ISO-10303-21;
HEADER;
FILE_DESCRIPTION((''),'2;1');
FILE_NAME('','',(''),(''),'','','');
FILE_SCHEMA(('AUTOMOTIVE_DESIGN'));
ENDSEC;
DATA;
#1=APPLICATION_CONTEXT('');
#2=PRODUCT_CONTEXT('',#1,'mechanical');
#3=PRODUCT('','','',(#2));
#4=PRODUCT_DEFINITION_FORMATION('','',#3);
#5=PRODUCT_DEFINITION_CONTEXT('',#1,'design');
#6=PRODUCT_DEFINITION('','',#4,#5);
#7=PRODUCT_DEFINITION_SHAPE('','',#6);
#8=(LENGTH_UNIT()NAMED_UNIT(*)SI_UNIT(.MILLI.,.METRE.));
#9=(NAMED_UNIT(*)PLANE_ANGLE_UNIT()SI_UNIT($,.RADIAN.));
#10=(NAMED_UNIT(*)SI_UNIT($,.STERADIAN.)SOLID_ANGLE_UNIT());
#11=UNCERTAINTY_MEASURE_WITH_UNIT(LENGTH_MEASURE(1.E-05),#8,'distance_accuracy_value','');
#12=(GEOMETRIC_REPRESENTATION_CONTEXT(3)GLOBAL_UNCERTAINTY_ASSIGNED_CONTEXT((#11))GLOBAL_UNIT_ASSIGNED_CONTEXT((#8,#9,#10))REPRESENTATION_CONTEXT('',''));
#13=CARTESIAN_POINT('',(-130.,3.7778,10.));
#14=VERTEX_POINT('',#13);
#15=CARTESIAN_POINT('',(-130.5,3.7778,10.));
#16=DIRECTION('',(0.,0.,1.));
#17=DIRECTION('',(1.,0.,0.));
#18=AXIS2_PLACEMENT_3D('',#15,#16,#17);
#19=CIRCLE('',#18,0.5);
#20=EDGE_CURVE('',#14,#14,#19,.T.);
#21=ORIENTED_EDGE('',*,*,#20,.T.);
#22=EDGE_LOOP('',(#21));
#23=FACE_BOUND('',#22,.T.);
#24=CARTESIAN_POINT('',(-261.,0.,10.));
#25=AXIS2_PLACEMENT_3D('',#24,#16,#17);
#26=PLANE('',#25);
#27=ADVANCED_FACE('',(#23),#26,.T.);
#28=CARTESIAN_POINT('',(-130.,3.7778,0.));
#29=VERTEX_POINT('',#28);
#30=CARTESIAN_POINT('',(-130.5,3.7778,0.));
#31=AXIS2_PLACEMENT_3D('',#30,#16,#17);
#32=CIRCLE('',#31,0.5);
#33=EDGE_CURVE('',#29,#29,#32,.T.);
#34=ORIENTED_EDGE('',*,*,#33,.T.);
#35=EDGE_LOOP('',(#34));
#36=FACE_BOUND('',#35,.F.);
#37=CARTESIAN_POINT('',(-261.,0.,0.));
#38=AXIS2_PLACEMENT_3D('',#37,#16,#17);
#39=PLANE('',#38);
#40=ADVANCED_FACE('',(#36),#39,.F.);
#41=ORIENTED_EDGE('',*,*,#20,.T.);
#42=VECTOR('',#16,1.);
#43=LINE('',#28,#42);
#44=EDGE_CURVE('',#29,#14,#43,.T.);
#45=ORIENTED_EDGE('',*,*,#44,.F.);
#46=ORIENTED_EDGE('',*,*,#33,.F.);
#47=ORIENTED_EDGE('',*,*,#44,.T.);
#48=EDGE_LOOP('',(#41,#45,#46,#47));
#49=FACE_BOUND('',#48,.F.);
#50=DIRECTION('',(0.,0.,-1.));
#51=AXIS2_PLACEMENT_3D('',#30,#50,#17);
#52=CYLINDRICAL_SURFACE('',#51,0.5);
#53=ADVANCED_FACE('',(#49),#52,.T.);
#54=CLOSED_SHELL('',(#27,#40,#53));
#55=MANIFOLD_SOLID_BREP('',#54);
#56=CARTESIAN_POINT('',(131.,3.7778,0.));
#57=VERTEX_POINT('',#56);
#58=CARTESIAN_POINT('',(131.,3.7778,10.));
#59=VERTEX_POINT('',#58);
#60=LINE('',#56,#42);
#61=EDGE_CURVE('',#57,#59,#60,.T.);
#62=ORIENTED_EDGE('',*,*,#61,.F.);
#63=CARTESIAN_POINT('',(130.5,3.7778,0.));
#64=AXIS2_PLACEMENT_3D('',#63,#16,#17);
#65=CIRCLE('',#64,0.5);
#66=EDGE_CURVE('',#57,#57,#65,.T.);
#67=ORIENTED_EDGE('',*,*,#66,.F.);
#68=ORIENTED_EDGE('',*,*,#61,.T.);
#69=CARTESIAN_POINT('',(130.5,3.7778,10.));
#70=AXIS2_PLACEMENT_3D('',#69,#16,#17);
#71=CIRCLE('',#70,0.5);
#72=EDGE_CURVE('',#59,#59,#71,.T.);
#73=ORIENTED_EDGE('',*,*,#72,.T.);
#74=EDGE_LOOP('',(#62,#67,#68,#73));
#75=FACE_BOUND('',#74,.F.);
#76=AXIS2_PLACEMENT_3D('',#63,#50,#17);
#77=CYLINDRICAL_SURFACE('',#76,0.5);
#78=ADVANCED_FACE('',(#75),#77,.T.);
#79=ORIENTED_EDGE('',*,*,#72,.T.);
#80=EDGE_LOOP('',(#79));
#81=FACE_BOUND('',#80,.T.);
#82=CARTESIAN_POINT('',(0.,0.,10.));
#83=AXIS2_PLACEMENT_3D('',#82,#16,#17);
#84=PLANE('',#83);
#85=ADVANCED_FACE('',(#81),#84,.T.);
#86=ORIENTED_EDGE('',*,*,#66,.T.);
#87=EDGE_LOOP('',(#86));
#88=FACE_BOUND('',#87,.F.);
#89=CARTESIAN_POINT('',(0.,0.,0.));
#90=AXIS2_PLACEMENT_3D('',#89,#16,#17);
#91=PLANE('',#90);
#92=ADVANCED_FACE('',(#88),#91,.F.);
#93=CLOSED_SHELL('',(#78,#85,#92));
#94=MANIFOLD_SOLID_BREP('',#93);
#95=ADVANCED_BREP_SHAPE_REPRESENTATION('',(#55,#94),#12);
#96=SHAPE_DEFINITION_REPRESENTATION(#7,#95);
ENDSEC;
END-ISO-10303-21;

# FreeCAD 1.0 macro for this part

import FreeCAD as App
import Part
import Sketcher

doc = App.newDocument("Part")
body = doc.addObject("PartDesign::Body", "Body")
body.AllowCompound = True

sketch1 = body.newObject("Sketcher::SketchObject", "Sketch")
sketch1.AttachmentSupport = (doc.getObject("XY_Plane"), [""])
sketch1.MapMode = "FlatFace"
sketch1.addGeometry(Part.Circle(App.Vector(130.5, 3.7778, 0), App.Vector(0, 0, 1), 0.5), False)
sketch1.addConstraint([
    Sketcher.Constraint("Diameter", 0, 1.0),
    Sketcher.Constraint("DistanceX", -1, 1, 0, 3, 130.5),
    Sketcher.Constraint("DistanceY", -1, 1, 0, 3, 3.7778),
])
pad1 = body.newObject("PartDesign::Pad", "Pad")
pad1.Profile = sketch1
pad1.Length = 10
doc.recompute()

linearpattern = body.newObject("PartDesign::LinearPattern", "LinearPattern")
linearpattern.Originals = [pad1]
linearpattern.Direction = (doc.getObject("X_Axis"), [""])
linearpattern.Mode = "offset"
linearpattern.Offset = 261
linearpattern.Occurrences = 2
linearpattern.Reversed = True
body.Tip = linearpattern

doc.recompute()
